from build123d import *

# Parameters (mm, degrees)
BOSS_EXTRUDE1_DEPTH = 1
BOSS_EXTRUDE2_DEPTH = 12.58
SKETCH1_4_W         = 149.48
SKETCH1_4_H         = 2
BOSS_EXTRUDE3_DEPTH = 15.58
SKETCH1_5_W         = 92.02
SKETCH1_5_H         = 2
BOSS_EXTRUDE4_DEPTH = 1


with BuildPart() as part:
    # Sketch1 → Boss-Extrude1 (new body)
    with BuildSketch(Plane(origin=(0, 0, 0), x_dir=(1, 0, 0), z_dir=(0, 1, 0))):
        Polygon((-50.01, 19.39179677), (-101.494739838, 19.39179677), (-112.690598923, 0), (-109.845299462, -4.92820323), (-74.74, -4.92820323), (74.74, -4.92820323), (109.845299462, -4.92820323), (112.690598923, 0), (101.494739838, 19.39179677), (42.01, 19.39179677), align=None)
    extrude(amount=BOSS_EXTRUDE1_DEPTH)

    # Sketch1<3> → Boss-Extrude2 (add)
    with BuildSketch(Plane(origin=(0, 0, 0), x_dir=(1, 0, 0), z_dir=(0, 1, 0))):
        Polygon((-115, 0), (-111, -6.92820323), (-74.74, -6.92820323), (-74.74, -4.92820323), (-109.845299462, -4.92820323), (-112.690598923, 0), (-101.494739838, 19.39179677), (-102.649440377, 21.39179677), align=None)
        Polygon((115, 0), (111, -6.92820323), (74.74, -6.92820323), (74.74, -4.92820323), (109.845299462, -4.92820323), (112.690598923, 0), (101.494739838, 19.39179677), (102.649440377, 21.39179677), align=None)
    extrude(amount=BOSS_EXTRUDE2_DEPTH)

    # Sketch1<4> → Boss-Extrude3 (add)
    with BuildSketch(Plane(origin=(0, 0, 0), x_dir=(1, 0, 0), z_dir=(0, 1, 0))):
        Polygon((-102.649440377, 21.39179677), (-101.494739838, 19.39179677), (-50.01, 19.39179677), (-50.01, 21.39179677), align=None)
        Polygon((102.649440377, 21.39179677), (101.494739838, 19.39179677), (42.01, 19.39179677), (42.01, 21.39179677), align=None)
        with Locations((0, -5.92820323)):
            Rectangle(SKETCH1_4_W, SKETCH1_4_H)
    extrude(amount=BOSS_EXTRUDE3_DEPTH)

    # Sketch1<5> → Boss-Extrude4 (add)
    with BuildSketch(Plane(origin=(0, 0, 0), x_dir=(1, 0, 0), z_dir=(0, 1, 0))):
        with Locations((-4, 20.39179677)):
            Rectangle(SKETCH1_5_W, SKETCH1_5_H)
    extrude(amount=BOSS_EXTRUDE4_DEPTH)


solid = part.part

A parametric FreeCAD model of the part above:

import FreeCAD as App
import Part
import Sketcher

V = App.Vector
Q = App.Units.Quantity


def add_polygon(sketch, points):
    """Adds a closed chain of lines whose ends are joined by coincident constraints."""
    first, n = sketch.GeometryCount, len(points)
    for a, b in zip(points, points[1:] + points[:1]):
        sketch.addGeometry(Part.LineSegment(App.Vector(*a, 0), App.Vector(*b, 0)), False)
    for i in range(n):
        sketch.addConstraint(Sketcher.Constraint("Coincident", first + i, 2, first + (i + 1) % n, 1))

doc = App.newDocument("Part")
body = doc.addObject("PartDesign::Body", "Body")

sketch1 = body.newObject("Sketcher::SketchObject", "Sketch")
sketch1.AttachmentSupport = (doc.getObject("XZ_Plane"), [""])
sketch1.MapMode = "FlatFace"
add_polygon(sketch1, [(-101, -19), (-113, 0), (-110, 5), (110, 5), (113, 0), (101, -19)])
sketch1.addConstraint([
    Sketcher.Constraint("Horizontal", 2),
    Sketcher.Constraint("Horizontal", 5),
    Sketcher.Constraint("Symmetric", 0, 2, 3, 2, -1, 1),
    Sketcher.Constraint("PointOnObject", 0, 2, -1),
    Sketcher.Constraint("Parallel", 0, 3),
    Sketcher.Constraint("Parallel", 1, 4),
    Sketcher.Constraint("Equal", 1, 3),
    Sketcher.Constraint("Angle", 0, Q("120 deg")),
    Sketcher.Constraint("DistanceY", 4, 2, 2, 2, Q("24.32 mm")),
    Sketcher.Constraint("DistanceX", 2, 1, 2, 2, Q("219.690599 mm")),
    Sketcher.Constraint("Distance", 1, Q("5.690599 mm")),
])
pad1 = body.newObject("PartDesign::Pad", "Pad")
pad1.Profile = sketch1
pad1.Length = 1
pad1.Reversed = True

sketch2 = body.newObject("Sketcher::SketchObject", "Sketch001")
sketch2.AttachmentSupport = (doc.getObject("XZ_Plane"), [""])
sketch2.MapMode = "FlatFace"
add_polygon(sketch2, [(-115, 0), (-111, 6.9), (-74.7, 6.9), (-74.7, 4.9), (-109.8, 4.9), (-112.7, 0), (-101.5, -19.4), (-102.6, -21.4)])
add_polygon(sketch2, [(111, 6.9), (115, 0), (102.6, -21.4), (101.5, -19.4), (112.7, 0), (109.8, 4.9), (74.7, 4.9), (74.7, 6.9)])
sketch2.addConstraint([
    Sketcher.Constraint("Horizontal", 1),
    Sketcher.Constraint("Vertical", 2),
    Sketcher.Constraint("Horizontal", 3),
    Sketcher.Constraint("Horizontal", 13),
    Sketcher.Constraint("Vertical", 14),
    Sketcher.Constraint("Horizontal", 15),
    Sketcher.Constraint("Symmetric", 7, 2, 8, 2, -1, 1),
    Sketcher.Constraint("Symmetric", 4, 2, 11, 2, -1, 1),
    Sketcher.Constraint("Symmetric", 6, 2, 9, 2, -2),
    Sketcher.Constraint("Symmetric", 5, 2, 10, 2, -2),
    Sketcher.Constraint("Symmetric", 3, 2, 12, 2, -2),
    Sketcher.Constraint("Symmetric", 1, 2, 14, 2, -2),
    Sketcher.Constraint("PointOnObject", 4, 2, -1),
    Sketcher.Constraint("PointOnObject", 7, 2, -1),
    Sketcher.Constraint("Parallel", 0, 4),
    Sketcher.Constraint("Parallel", 4, 6),
    Sketcher.Constraint("Parallel", 5, 7),
    Sketcher.Constraint("Parallel", 7, 8),
    Sketcher.Constraint("Parallel", 6, 9),
    Sketcher.Constraint("DistanceY", 2, 2, 2, 1, Q("2 mm")),
    Sketcher.Constraint("Angle", 0, Q("60 deg")),
    Sketcher.Constraint("Distance", 0, Q("8 mm")),
    Sketcher.Constraint("DistanceX", 0, 2, -1, 1, Q("111 mm")),
    Sketcher.Constraint("DistanceY", 6, 2, 5, 2, Q("2 mm")),
    Sketcher.Constraint("DistanceX", 1, 1, 1, 2, Q("36.26 mm")),
    Sketcher.Constraint("DistanceY", 5, 2, 3, 2, Q("24.32 mm")),
])
pad2 = body.newObject("PartDesign::Pad", "Pad001")
pad2.Profile = sketch2
pad2.Length = 12.58
pad2.Reversed = True

sketch3 = body.newObject("Sketcher::SketchObject", "Sketch002")
sketch3.AttachmentSupport = (doc.getObject("XZ_Plane"), [""])
sketch3.MapMode = "FlatFace"
add_polygon(sketch3, [(-102.6, -21.4), (-101.5, -19.4), (-50, -19.4), (-50, -21.4)])
add_polygon(sketch3, [(101.5, -19.4), (102.6, -21.4), (42, -21.4), (42, -19.4)])
add_polygon(sketch3, [(-74.7, 4.9), (-74.7, 6.9), (74.7, 6.9), (74.7, 4.9)])
sketch3.addConstraint([
    Sketcher.Constraint("Horizontal", 1),
    Sketcher.Constraint("Vertical", 2),
    Sketcher.Constraint("Horizontal", 3),
    Sketcher.Constraint("Horizontal", 5),
    Sketcher.Constraint("Vertical", 6),
    Sketcher.Constraint("Horizontal", 7),
    Sketcher.Constraint("Vertical", 8),
    Sketcher.Constraint("Horizontal", 9),
    Sketcher.Constraint("Vertical", 10),
    Sketcher.Constraint("Horizontal", 11),
    Sketcher.Constraint("Symmetric", 3, 2, 4, 2, -2),
    Sketcher.Constraint("Symmetric", 0, 2, 7, 2, -2),
    Sketcher.Constraint("Equal", 6, 8),
    Sketcher.Constraint("DistanceY", 2, 2, 2, 1, Q("2 mm")),
    Sketcher.Constraint("Angle", 0, Q("60 deg")),
    Sketcher.Constraint("DistanceX", 9, 1, 9, 2, Q("149.48 mm")),
    Sketcher.Constraint("DistanceX", 1, 2, -1, 1, Q("50.01 mm")),
    Sketcher.Constraint("DistanceX", -1, 1, 5, 2, Q("42.01 mm")),
    Sketcher.Constraint("DistanceX", 8, 2, -1, 1, Q("74.74 mm")),
    Sketcher.Constraint("DistanceY", 1, 2, 8, 2, Q("26.32 mm")),
    Sketcher.Constraint("DistanceX", 1, 1, 1, 2, Q("51.48474 mm")),
    Sketcher.Constraint("DistanceY", 0, 2, -1, 1, Q("19.391797 mm")),
])
pad3 = body.newObject("PartDesign::Pad", "Pad002")
pad3.Profile = sketch3
pad3.Length = 15.58
pad3.Reversed = True

sketch4 = body.newObject("Sketcher::SketchObject", "Sketch003")
sketch4.AttachmentSupport = (doc.getObject("XZ_Plane"), [""])
sketch4.MapMode = "FlatFace"
add_polygon(sketch4, [(-50, -21.4), (-50, -19.4), (42, -19.4), (42, -21.4)])
sketch4.addConstraint([
    Sketcher.Constraint("Vertical", 0),
    Sketcher.Constraint("Horizontal", 1),
    Sketcher.Constraint("Vertical", 2),
    Sketcher.Constraint("Horizontal", 3),
    Sketcher.Constraint("DistanceY", 0, 1, 0, 2, Q("2 mm")),
    Sketcher.Constraint("DistanceX", 1, 1, 1, 2, Q("92.02 mm")),
    Sketcher.Constraint("DistanceX", 0, 2, -1, 1, Q("50.01 mm")),
    Sketcher.Constraint("DistanceY", 0, 2, -1, 1, Q("19.391797 mm")),
])
pad4 = body.newObject("PartDesign::Pad", "Pad003")
pad4.Profile = sketch4
pad4.Length = 1
pad4.Reversed = True

doc.recompute()
